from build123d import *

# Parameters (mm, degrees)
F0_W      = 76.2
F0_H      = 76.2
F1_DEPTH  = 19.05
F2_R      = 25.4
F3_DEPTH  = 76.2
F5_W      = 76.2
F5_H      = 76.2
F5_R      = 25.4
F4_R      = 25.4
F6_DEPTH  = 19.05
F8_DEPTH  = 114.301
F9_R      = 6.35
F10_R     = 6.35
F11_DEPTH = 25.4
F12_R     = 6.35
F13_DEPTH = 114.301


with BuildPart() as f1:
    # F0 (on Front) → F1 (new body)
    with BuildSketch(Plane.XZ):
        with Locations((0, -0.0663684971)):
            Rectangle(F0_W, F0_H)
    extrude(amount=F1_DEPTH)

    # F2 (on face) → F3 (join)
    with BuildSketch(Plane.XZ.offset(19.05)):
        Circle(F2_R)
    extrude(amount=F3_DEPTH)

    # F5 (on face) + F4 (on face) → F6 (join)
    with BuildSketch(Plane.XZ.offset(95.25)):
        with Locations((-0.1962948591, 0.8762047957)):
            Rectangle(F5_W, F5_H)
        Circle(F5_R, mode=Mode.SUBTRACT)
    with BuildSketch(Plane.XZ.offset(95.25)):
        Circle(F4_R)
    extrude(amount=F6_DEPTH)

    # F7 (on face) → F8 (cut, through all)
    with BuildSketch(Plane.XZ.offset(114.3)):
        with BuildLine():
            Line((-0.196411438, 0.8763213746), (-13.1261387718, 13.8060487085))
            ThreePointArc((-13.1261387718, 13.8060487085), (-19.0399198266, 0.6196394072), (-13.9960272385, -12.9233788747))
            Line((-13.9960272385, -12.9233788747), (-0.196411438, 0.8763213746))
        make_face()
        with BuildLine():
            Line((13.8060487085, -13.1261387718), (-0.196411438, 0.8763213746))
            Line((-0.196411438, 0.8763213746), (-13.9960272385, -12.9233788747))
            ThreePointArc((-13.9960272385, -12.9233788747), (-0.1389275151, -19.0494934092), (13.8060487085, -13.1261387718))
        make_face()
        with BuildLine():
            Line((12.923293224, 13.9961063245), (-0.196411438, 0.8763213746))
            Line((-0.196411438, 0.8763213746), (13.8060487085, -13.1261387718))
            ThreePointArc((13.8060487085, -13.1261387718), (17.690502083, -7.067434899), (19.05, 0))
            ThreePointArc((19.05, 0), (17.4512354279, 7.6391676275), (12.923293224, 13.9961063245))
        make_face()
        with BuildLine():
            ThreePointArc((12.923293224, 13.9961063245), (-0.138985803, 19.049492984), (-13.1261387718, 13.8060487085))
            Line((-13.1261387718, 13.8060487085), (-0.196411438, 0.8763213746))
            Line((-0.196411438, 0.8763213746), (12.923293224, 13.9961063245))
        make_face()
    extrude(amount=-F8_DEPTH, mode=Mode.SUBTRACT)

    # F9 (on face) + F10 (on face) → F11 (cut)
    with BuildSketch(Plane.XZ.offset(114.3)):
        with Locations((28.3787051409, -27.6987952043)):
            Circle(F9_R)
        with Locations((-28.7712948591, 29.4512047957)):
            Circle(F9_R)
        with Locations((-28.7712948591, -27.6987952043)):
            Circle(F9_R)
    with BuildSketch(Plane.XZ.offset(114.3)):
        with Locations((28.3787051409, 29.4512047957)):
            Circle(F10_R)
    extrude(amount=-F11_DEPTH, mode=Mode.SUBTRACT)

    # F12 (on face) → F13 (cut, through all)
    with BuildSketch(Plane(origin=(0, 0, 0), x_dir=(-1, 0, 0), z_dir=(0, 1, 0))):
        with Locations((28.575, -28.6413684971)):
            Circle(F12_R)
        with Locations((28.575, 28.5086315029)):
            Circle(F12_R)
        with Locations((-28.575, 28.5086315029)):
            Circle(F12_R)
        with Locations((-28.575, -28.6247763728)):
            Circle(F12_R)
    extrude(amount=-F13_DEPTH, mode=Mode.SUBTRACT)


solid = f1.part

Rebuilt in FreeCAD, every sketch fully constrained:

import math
import FreeCAD as App
import Part
import Sketcher

V = App.Vector
Q = App.Units.Quantity

doc = App.newDocument("Part")
body = doc.addObject("PartDesign::Body", "Body")

# Sketch on XZ plane
sketch1 = doc.addObject("Sketcher::SketchObject", "Sketch")
body.addObject(sketch1)
sketch1.AttachmentSupport = (doc.XZ_Plane, [""])
sketch1.MapMode = "FlatFace"
sketch1.addGeometry(Part.LineSegment(V(-38, 38, 0), V(-38, -38, 0)), False)
sketch1.addGeometry(Part.LineSegment(V(-38, -38, 0), V(38, -38, 0)), False)
sketch1.addGeometry(Part.LineSegment(V(38, -38, 0), V(38, 38, 0)), False)
sketch1.addGeometry(Part.LineSegment(V(38, 38, 0), V(-38, 38, 0)), False)
sketch1.addConstraint(Sketcher.Constraint("Coincident", 0, 2, 1, 1))
sketch1.addConstraint(Sketcher.Constraint("Coincident", 1, 2, 2, 1))
sketch1.addConstraint(Sketcher.Constraint("Coincident", 2, 2, 3, 1))
sketch1.addConstraint(Sketcher.Constraint("Coincident", 3, 2, 0, 1))
sketch1.addConstraint(Sketcher.Constraint("Vertical", 0))
sketch1.addConstraint(Sketcher.Constraint("Horizontal", 1))
sketch1.addConstraint(Sketcher.Constraint("Vertical", 2))
sketch1.addConstraint(Sketcher.Constraint("Horizontal", 3))
sketch1.addConstraint(Sketcher.Constraint("Equal", 3, 0))
sketch1.addConstraint(Sketcher.Constraint("DistanceX", 1, 1, 1, 2, Q("3 in")))
sketch1.addConstraint(Sketcher.Constraint("DistanceX", 0, 2, -1, 1, Q("1.5 in")))
sketch1.addConstraint(Sketcher.Constraint("DistanceY", 0, 2, -1, 1, 38.166368))
pad1 = doc.addObject("PartDesign::Pad", "Pad")
body.addObject(pad1)
pad1.Profile = sketch1
pad1.Length = Q("0.75 in")

# Sketch on XZ plane
sketch2 = doc.addObject("Sketcher::SketchObject", "Sketch001")
body.addObject(sketch2)
sketch2.AttachmentSupport = (doc.XZ_Plane, [""])
sketch2.MapMode = "FlatFace"
sketch2.AttachmentOffset = App.Placement(V(0, 0, 0.75 * 25.4), App.Rotation())
sketch2.addGeometry(Part.Circle(V(0, 0, 0), V(0, 0, 1), 25), False)
sketch2.addConstraint(Sketcher.Constraint("Coincident", 0, 3, -1, 1))
sketch2.addConstraint(Sketcher.Constraint("Diameter", 0, Q("2 in")))
pad2 = doc.addObject("PartDesign::Pad", "Pad001")
body.addObject(pad2)
pad2.Profile = sketch2
pad2.Length = Q("3 in")

# Sketch on XZ plane
sketch3 = doc.addObject("Sketcher::SketchObject", "Sketch002")
body.addObject(sketch3)
sketch3.AttachmentSupport = (doc.XZ_Plane, [""])
sketch3.MapMode = "FlatFace"
sketch3.AttachmentOffset = App.Placement(V(0, 0, 3.75 * 25.4), App.Rotation())
sketch3.addGeometry(Part.LineSegment(V(-38, 39, 0), V(-38, -37, 0)), False)
sketch3.addGeometry(Part.LineSegment(V(-38, -37, 0), V(38, -37, 0)), False)
sketch3.addGeometry(Part.LineSegment(V(38, -37, 0), V(38, 39, 0)), False)
sketch3.addGeometry(Part.LineSegment(V(38, 39, 0), V(-38, 39, 0)), False)
sketch3.addConstraint(Sketcher.Constraint("Coincident", 0, 2, 1, 1))
sketch3.addConstraint(Sketcher.Constraint("Coincident", 1, 2, 2, 1))
sketch3.addConstraint(Sketcher.Constraint("Coincident", 2, 2, 3, 1))
sketch3.addConstraint(Sketcher.Constraint("Coincident", 3, 2, 0, 1))
sketch3.addConstraint(Sketcher.Constraint("Vertical", 0))
sketch3.addConstraint(Sketcher.Constraint("Horizontal", 1))
sketch3.addConstraint(Sketcher.Constraint("Vertical", 2))
sketch3.addConstraint(Sketcher.Constraint("Horizontal", 3))
sketch3.addConstraint(Sketcher.Constraint("Equal", 3, 0))
sketch3.addConstraint(Sketcher.Constraint("DistanceX", 1, 1, 1, 2, Q("3 in")))
sketch3.addConstraint(Sketcher.Constraint("DistanceX", 0, 2, -1, 1, 38.296295))
sketch3.addConstraint(Sketcher.Constraint("DistanceY", 0, 2, -1, 1, 37.223795))
pad3 = doc.addObject("PartDesign::Pad", "Pad002")
body.addObject(pad3)
pad3.Profile = sketch3
pad3.Length = Q("0.75 in")

# Sketch on XZ plane
sketch4 = doc.addObject("Sketcher::SketchObject", "Sketch003")
body.addObject(sketch4)
sketch4.AttachmentSupport = (doc.XZ_Plane, [""])
sketch4.MapMode = "FlatFace"
sketch4.AttachmentOffset = App.Placement(V(0, 0, 4.5 * 25.4), App.Rotation())
sketch4.addGeometry(Part.ArcOfCircle(Part.Circle(V(0, 0, 0), V(0, 0, 1), 19), math.radians(134), math.radians(223)), False)
sketch4.addGeometry(Part.ArcOfCircle(Part.Circle(V(0, 0, 0), V(0, 0, 1), 19), math.radians(-137), math.radians(-44)), False)
sketch4.addGeometry(Part.ArcOfCircle(Part.Circle(V(0, 0, 0), V(0, 0, 1), 19), math.radians(-44), math.radians(0)), False)
sketch4.addGeometry(Part.ArcOfCircle(Part.Circle(V(0, 0, 0), V(0, 0, 1), 19), math.radians(0), math.radians(47)), False)
sketch4.addGeometry(Part.ArcOfCircle(Part.Circle(V(0, 0, 0), V(0, 0, 1), 19), math.radians(47), math.radians(134)), False)
sketch4.addConstraint(Sketcher.Constraint("Tangent", 0, 2, 1, 1))
sketch4.addConstraint(Sketcher.Constraint("Tangent", 1, 2, 2, 1))
sketch4.addConstraint(Sketcher.Constraint("Tangent", 2, 2, 3, 1))
sketch4.addConstraint(Sketcher.Constraint("Tangent", 3, 2, 4, 1))
sketch4.addConstraint(Sketcher.Constraint("Tangent", 4, 2, 0, 1))
sketch4.addConstraint(Sketcher.Constraint("Coincident", 0, 3, -1, 1))
sketch4.addConstraint(Sketcher.Constraint("Coincident", 2, 3, -1, 1))
sketch4.addConstraint(Sketcher.Constraint("PointOnObject", 2, 2, -1))
sketch4.addConstraint(Sketcher.Constraint("Radius", 0, Q("0.75 in")))
sketch4.addConstraint(Sketcher.Constraint("DistanceY", 0, 2, -1, 1, 12.923379))
sketch4.addConstraint(Sketcher.Constraint("DistanceX", -1, 1, 1, 2, 13.806049))
sketch4.addConstraint(Sketcher.Constraint("DistanceX", 4, 2, -1, 1, 13.126139))
sketch4.addConstraint(Sketcher.Constraint("DistanceX", -1, 1, 3, 2, 12.923293))
pocket1 = doc.addObject("PartDesign::Pocket", "Pocket")
body.addObject(pocket1)
pocket1.Profile = sketch4
pocket1.Type = "ThroughAll"

# Sketch on XZ plane
sketch5 = doc.addObject("Sketcher::SketchObject", "Sketch004")
body.addObject(sketch5)
sketch5.AttachmentSupport = (doc.XZ_Plane, [""])
sketch5.MapMode = "FlatFace"
sketch5.AttachmentOffset = App.Placement(V(0, 0, 4.5 * 25.4), App.Rotation())
sketch5.addGeometry(Part.Circle(V(28, -28, 0), V(0, 0, 1), 6), False)
sketch5.addGeometry(Part.Circle(V(-29, 29, 0), V(0, 0, 1), 6), False)
sketch5.addGeometry(Part.Circle(V(-29, -28, 0), V(0, 0, 1), 6), False)
sketch5.addGeometry(Part.Circle(V(28, 29, 0), V(0, 0, 1), 6), False)
sketch5.addConstraint(Sketcher.Constraint("Equal", 0, 1))
sketch5.addConstraint(Sketcher.Constraint("Equal", 1, 2))
sketch5.addConstraint(Sketcher.Constraint("Equal", 2, 3))
sketch5.addConstraint(Sketcher.Constraint("Horizontal", 0, 3, 2, 3))
sketch5.addConstraint(Sketcher.Constraint("Horizontal", 1, 3, 3, 3))
sketch5.addConstraint(Sketcher.Constraint("Vertical", 1, 3, 2, 3))
sketch5.addConstraint(Sketcher.Constraint("Vertical", 0, 3, 3, 3))
sketch5.addConstraint(Sketcher.Constraint("Diameter", 0, Q("0.5 in")))
sketch5.addConstraint(Sketcher.Constraint("DistanceX", 1, 3, 0, 3, Q("2.25 in")))
sketch5.addConstraint(Sketcher.Constraint("DistanceY", 0, 3, 1, 3, Q("2.25 in")))
sketch5.addConstraint(Sketcher.Constraint("DistanceX", -1, 1, 0, 3, 28.378705))
sketch5.addConstraint(Sketcher.Constraint("DistanceY", 0, 3, -1, 1, 27.698795))
pocket2 = doc.addObject("PartDesign::Pocket", "Pocket001")
body.addObject(pocket2)
pocket2.Profile = sketch5
pocket2.Length = Q("1 in")

# Sketch on XZ plane
sketch6 = doc.addObject("Sketcher::SketchObject", "Sketch005")
body.addObject(sketch6)
sketch6.AttachmentSupport = (doc.XZ_Plane, [""])
sketch6.MapMode = "FlatFace"
sketch6.addGeometry(Part.Circle(V(-29, -29, 0), V(0, 0, 1), 6), False)
sketch6.addGeometry(Part.Circle(V(-29, 29, 0), V(0, 0, 1), 6), False)
sketch6.addGeometry(Part.Circle(V(29, 29, 0), V(0, 0, 1), 6), False)
sketch6.addGeometry(Part.Circle(V(29, -29, 0), V(0, 0, 1), 6), False)
sketch6.addConstraint(Sketcher.Constraint("Equal", 0, 1))
sketch6.addConstraint(Sketcher.Constraint("Equal", 1, 2))
sketch6.addConstraint(Sketcher.Constraint("Equal", 2, 3))
sketch6.addConstraint(Sketcher.Constraint("Symmetric", 1, 3, 2, 3, -2))
sketch6.addConstraint(Sketcher.Constraint("Vertical", 0, 3, 1, 3))
sketch6.addConstraint(Sketcher.Constraint("Vertical", 2, 3, 3, 3))
sketch6.addConstraint(Sketcher.Constraint("Diameter", 0, Q("0.5 in")))
sketch6.addConstraint(Sketcher.Constraint("DistanceY", 0, 3, 1, 3, Q("2.25 in")))
sketch6.addConstraint(Sketcher.Constraint("DistanceX", 1, 3, 2, 3, Q("2.25 in")))
sketch6.addConstraint(Sketcher.Constraint("DistanceY", 0, 3, -1, 1, 28.641368))
sketch6.addConstraint(Sketcher.Constraint("DistanceY", 3, 3, -1, 1, 28.624776))
pocket3 = doc.addObject("PartDesign::Pocket", "Pocket002")
body.addObject(pocket3)
pocket3.Profile = sketch6
pocket3.Type = "ThroughAll"
pocket3.Reversed = True

doc.recompute()
